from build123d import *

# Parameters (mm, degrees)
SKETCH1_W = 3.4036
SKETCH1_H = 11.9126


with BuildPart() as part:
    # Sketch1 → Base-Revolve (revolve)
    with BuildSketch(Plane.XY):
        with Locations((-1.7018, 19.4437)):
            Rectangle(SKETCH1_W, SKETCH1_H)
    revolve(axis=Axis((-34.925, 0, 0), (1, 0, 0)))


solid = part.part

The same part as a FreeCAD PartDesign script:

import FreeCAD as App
import Part
import Sketcher
Q = App.Units.Quantity


def add_polygon(sketch, points):
    """Adds a closed chain of lines whose ends are joined by coincident constraints."""
    first, n = sketch.GeometryCount, len(points)
    for a, b in zip(points, points[1:] + points[:1]):
        sketch.addGeometry(Part.LineSegment(App.Vector(*a, 0), App.Vector(*b, 0)), False)
    for i in range(n):
        sketch.addConstraint(Sketcher.Constraint("Coincident", first + i, 2, first + (i + 1) % n, 1))

doc = App.newDocument("Part")
body = doc.addObject("PartDesign::Body", "Body")

# Sketch on XY plane
sketch1 = body.newObject("Sketcher::SketchObject", "Sketch")
sketch1.AttachmentSupport = (doc.getObject("XY_Plane"), [""])
sketch1.MapMode = "FlatFace"
add_polygon(sketch1, [(-3.4, 25.4), (-3.4, 13.5), (0, 13.5), (0, 25.4)])  # lines 0-3
sketch1.addConstraint(Sketcher.Constraint("Vertical", 0))
sketch1.addConstraint(Sketcher.Constraint("Horizontal", 1))
sketch1.addConstraint(Sketcher.Constraint("Vertical", 2))
sketch1.addConstraint(Sketcher.Constraint("Horizontal", 3))
sketch1.addConstraint(Sketcher.Constraint("PointOnObject", 1, 2, -2))
sketch1.addConstraint(Sketcher.Constraint("DistanceY", -1, 1, 2, 2, Q("1 in")))
sketch1.addConstraint(Sketcher.Constraint("DistanceX", 1, 1, 1, 2, Q("0.134 in")))
sketch1.addConstraint(Sketcher.Constraint("DistanceY", 0, 2, 0, 1, Q("0.469 in")))
revolution = body.newObject("PartDesign::Revolution", "Revolution")
revolution.Profile = sketch1
revolution.ReferenceAxis = (sketch1, ["H_Axis"])
revolution.Angle = 360

doc.recompute()
